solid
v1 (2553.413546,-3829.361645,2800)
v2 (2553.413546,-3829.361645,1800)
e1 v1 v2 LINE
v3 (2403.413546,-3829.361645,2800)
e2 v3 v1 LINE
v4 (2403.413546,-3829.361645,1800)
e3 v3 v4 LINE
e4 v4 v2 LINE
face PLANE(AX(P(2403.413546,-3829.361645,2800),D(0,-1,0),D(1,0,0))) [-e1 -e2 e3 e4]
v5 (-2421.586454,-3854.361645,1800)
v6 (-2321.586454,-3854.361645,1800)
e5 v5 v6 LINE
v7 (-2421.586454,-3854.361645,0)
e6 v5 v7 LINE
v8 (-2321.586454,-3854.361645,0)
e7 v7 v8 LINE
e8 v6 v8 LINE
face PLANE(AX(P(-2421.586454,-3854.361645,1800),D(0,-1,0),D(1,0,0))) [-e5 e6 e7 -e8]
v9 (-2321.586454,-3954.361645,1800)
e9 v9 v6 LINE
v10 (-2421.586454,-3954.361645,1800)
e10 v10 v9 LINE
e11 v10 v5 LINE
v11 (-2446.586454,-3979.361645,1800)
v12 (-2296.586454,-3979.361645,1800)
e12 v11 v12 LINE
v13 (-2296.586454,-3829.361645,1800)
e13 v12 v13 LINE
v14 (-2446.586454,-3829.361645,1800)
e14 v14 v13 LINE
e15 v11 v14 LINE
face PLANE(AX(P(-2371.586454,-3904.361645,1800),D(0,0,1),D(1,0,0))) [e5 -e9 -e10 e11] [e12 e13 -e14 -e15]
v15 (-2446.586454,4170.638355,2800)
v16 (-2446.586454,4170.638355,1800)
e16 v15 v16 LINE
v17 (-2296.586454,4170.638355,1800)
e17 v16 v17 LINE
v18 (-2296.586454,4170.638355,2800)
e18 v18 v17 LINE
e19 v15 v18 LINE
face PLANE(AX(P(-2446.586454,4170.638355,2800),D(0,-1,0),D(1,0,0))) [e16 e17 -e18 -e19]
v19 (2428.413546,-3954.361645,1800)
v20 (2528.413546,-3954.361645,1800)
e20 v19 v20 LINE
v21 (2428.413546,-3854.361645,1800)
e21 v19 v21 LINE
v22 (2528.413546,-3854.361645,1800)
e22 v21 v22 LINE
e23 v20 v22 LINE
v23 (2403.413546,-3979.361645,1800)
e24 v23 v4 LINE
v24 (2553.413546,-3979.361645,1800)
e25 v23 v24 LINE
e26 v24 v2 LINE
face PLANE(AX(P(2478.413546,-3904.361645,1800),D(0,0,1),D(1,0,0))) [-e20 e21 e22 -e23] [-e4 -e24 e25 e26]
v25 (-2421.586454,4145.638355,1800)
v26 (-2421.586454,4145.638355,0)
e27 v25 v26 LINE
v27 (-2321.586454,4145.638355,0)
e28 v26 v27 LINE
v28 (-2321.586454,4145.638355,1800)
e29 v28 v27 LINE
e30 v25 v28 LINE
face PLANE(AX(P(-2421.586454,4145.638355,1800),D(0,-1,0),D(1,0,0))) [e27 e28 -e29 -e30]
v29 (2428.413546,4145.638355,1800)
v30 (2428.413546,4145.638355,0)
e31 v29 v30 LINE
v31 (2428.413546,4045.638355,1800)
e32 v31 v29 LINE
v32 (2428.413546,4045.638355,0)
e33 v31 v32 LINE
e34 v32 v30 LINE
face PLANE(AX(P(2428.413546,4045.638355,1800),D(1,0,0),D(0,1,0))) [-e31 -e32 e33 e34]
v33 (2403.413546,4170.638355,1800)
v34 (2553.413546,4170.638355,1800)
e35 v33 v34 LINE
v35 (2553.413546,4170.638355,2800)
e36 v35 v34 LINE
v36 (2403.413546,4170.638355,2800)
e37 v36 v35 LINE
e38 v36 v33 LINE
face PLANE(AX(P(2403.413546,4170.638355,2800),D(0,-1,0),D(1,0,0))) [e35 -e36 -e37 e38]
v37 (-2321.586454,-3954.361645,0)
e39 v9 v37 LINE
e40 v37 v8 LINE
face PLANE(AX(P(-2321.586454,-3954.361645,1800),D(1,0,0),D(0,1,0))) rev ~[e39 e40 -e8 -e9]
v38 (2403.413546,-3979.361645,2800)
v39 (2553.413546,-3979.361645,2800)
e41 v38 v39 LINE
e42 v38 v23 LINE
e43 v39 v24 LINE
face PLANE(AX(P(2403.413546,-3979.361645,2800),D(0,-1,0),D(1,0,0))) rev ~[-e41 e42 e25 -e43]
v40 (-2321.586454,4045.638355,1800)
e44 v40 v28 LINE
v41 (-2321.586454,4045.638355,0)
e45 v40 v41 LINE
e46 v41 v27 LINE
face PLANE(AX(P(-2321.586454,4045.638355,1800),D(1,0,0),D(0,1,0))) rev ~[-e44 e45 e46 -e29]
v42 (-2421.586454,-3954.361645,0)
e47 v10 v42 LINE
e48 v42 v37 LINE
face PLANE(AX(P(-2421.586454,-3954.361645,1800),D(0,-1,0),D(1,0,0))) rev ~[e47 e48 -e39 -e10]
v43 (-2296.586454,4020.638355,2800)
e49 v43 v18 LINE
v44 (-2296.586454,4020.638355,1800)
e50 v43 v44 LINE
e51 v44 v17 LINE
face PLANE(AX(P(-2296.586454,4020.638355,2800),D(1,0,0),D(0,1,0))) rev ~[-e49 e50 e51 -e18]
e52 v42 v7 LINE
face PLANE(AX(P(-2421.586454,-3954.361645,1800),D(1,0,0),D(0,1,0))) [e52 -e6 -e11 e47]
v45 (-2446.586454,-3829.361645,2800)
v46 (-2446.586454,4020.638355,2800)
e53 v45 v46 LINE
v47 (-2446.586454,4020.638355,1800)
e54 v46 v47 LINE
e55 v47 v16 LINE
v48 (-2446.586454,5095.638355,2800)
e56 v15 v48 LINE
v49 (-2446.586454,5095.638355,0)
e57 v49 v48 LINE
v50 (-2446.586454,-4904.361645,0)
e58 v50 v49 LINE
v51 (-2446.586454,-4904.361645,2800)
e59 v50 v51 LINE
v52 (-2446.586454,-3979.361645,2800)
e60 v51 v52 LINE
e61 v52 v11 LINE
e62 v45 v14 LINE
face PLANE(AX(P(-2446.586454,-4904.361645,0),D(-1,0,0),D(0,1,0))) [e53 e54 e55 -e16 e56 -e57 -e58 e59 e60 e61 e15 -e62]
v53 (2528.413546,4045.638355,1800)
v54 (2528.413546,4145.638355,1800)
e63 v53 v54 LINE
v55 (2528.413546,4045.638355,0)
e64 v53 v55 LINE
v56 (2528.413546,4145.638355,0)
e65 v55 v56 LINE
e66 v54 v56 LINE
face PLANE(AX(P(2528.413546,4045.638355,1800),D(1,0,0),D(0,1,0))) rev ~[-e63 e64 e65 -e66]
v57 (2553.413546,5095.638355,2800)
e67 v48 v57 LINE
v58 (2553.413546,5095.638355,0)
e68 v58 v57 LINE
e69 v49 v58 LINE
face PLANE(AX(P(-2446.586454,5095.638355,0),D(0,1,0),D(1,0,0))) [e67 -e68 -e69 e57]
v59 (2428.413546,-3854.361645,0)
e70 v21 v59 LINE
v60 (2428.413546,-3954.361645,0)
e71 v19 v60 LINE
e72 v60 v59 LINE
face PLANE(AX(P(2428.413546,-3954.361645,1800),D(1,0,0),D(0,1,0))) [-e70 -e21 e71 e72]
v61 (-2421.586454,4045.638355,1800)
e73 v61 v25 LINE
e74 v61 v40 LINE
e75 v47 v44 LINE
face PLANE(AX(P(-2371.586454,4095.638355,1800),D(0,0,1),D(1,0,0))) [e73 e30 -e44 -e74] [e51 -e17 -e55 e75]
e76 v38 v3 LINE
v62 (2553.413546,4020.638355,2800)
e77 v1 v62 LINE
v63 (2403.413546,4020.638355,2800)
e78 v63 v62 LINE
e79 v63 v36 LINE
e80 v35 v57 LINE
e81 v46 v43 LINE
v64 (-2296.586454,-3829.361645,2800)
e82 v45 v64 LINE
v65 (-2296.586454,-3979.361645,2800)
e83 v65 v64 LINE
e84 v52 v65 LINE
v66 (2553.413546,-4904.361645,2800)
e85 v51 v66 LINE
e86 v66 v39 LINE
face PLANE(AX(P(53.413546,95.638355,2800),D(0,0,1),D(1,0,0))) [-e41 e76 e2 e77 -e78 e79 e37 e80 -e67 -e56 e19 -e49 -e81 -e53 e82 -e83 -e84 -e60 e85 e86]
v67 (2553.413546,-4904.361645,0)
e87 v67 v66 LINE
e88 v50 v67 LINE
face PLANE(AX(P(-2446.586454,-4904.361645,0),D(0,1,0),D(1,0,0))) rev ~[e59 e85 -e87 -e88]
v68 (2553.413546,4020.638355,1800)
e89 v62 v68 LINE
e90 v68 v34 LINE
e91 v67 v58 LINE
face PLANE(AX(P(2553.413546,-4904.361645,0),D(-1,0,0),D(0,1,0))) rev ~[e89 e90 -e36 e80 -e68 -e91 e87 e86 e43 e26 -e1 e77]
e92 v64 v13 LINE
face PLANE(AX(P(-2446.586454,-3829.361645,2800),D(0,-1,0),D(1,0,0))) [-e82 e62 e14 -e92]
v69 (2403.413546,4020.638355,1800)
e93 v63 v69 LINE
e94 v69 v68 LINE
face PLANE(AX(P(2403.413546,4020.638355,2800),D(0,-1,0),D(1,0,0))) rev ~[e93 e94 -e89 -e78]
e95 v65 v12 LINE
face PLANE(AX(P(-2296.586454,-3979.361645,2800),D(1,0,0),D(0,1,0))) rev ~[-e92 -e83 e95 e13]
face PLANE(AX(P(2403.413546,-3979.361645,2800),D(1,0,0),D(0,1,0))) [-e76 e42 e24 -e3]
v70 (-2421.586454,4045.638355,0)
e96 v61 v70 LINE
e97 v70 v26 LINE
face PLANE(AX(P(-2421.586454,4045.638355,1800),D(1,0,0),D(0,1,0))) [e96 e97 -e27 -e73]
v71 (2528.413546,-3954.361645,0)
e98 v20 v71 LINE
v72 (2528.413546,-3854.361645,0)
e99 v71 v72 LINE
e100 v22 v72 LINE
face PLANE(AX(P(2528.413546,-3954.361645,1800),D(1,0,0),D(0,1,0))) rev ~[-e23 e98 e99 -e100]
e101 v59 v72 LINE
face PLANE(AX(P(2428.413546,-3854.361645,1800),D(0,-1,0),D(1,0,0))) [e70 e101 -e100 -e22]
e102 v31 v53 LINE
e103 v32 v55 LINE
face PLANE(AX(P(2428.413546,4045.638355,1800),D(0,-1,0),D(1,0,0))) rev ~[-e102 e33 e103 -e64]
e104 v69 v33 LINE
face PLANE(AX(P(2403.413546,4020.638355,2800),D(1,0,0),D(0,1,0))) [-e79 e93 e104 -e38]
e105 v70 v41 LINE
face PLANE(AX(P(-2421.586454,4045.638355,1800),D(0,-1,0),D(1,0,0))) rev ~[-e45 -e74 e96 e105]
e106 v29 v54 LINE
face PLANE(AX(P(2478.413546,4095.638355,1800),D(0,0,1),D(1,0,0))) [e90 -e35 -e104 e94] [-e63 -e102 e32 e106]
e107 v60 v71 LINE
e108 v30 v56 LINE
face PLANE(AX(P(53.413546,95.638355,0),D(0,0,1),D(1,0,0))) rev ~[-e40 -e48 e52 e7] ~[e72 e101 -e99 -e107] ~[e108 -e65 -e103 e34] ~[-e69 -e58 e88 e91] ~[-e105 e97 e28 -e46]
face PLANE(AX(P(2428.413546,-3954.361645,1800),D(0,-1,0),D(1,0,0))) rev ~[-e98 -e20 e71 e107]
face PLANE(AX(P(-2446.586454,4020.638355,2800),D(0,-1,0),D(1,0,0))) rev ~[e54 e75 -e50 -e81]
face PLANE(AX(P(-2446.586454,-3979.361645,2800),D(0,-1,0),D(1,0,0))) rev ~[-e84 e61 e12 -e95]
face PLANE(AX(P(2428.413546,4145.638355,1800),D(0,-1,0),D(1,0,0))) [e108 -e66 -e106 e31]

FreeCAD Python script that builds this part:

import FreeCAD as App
import Part
import Sketcher
from FreeCAD import Vector

doc = App.newDocument("Part")
body = doc.addObject("PartDesign::Body", "Body")

# Sketch on XY plane
sketch1 = body.newObject("Sketcher::SketchObject", "Sketch")
sketch1.AttachmentSupport = (doc.getObject("XY_Plane"), [""])
sketch1.MapMode = "FlatFace"
sketch1.addGeometry([
    Part.LineSegment(Vector(-2447, 5096, 0), Vector(-2447, -4904, 0)),
    Part.LineSegment(Vector(-2447, -4904, 0), Vector(2553, -4904, 0)),
    Part.LineSegment(Vector(2553, -4904, 0), Vector(2553, 5096, 0)),
    Part.LineSegment(Vector(2553, 5096, 0), Vector(-2447, 5096, 0)),
], False)
sketch1.addConstraint([
    Sketcher.Constraint("Coincident", 0, 2, 1, 1),
    Sketcher.Constraint("Coincident", 1, 2, 2, 1),
    Sketcher.Constraint("Coincident", 2, 2, 3, 1),
    Sketcher.Constraint("Coincident", 3, 2, 0, 1),
    Sketcher.Constraint("Vertical", 0),
    Sketcher.Constraint("Horizontal", 1),
    Sketcher.Constraint("Vertical", 2),
    Sketcher.Constraint("Horizontal", 3),
    Sketcher.Constraint("DistanceX", 1, 1, 1, 2, 5000.0),
    Sketcher.Constraint("DistanceY", 0, 2, 0, 1, 10000.0),
    Sketcher.Constraint("DistanceX", 0, 2, -1, 1, 2446.586454),
    Sketcher.Constraint("DistanceY", 0, 2, -1, 1, 4904.361645),
])
pad1 = body.newObject("PartDesign::Pad", "Pad")
pad1.Profile = sketch1
pad1.Length = 2800

# Sketch on XY plane
sketch2 = body.newObject("Sketcher::SketchObject", "Sketch001")
sketch2.AttachmentSupport = (doc.getObject("XY_Plane"), [""])
sketch2.MapMode = "FlatFace"
sketch2.AttachmentOffset = App.Placement(Vector(0, 0, 2800), App.Rotation())
sketch2.addGeometry([
    Part.LineSegment(Vector(-2447, 4171, 0), Vector(-2447, 4021, 0)),  # 0
    Part.LineSegment(Vector(-2447, 4021, 0), Vector(-2297, 4021, 0)),  # 1
    Part.LineSegment(Vector(-2297, 4021, 0), Vector(-2297, 4171, 0)),  # 2
    Part.LineSegment(Vector(-2297, 4171, 0), Vector(-2447, 4171, 0)),  # 3
    Part.LineSegment(Vector(2403, 4171, 0), Vector(2403, 4021, 0)),  # 4
    Part.LineSegment(Vector(2403, 4021, 0), Vector(2553, 4021, 0)),  # 5
    Part.LineSegment(Vector(2553, 4021, 0), Vector(2553, 4171, 0)),  # 6
    Part.LineSegment(Vector(2553, 4171, 0), Vector(2403, 4171, 0)),  # 7
    Part.LineSegment(Vector(2403, -3829, 0), Vector(2403, -3979, 0)),  # 8
    Part.LineSegment(Vector(2403, -3979, 0), Vector(2553, -3979, 0)),  # 9
    Part.LineSegment(Vector(2553, -3979, 0), Vector(2553, -3829, 0)),  # 10
    Part.LineSegment(Vector(2553, -3829, 0), Vector(2403, -3829, 0)),  # 11
    Part.LineSegment(Vector(-2447, -3829, 0), Vector(-2447, -3979, 0)),  # 12
    Part.LineSegment(Vector(-2447, -3979, 0), Vector(-2297, -3979, 0)),  # 13
    Part.LineSegment(Vector(-2297, -3979, 0), Vector(-2297, -3829, 0)),  # 14
    Part.LineSegment(Vector(-2297, -3829, 0), Vector(-2447, -3829, 0)),  # 15
], False)
sketch2.addConstraint([
    Sketcher.Constraint("Coincident", 0, 2, 1, 1),
    Sketcher.Constraint("Coincident", 1, 2, 2, 1),
    Sketcher.Constraint("Coincident", 2, 2, 3, 1),
    Sketcher.Constraint("Coincident", 3, 2, 0, 1),
    Sketcher.Constraint("Coincident", 4, 2, 5, 1),
    Sketcher.Constraint("Coincident", 5, 2, 6, 1),
    Sketcher.Constraint("Coincident", 6, 2, 7, 1),
    Sketcher.Constraint("Coincident", 7, 2, 4, 1),
    Sketcher.Constraint("Coincident", 8, 2, 9, 1),
    Sketcher.Constraint("Coincident", 9, 2, 10, 1),
    Sketcher.Constraint("Coincident", 10, 2, 11, 1),
    Sketcher.Constraint("Coincident", 11, 2, 8, 1),
    Sketcher.Constraint("Coincident", 12, 2, 13, 1),
    Sketcher.Constraint("Coincident", 13, 2, 14, 1),
    Sketcher.Constraint("Coincident", 14, 2, 15, 1),
    Sketcher.Constraint("Coincident", 15, 2, 12, 1),
    Sketcher.Constraint("Vertical", 0),
    Sketcher.Constraint("Horizontal", 1),
    Sketcher.Constraint("Vertical", 2),
    Sketcher.Constraint("Horizontal", 3),
    Sketcher.Constraint("Vertical", 4),
    Sketcher.Constraint("Horizontal", 5),
    Sketcher.Constraint("Vertical", 6),
    Sketcher.Constraint("Horizontal", 7),
    Sketcher.Constraint("Vertical", 8),
    Sketcher.Constraint("Horizontal", 9),
    Sketcher.Constraint("Vertical", 10),
    Sketcher.Constraint("Horizontal", 11),
    Sketcher.Constraint("Vertical", 12),
    Sketcher.Constraint("Horizontal", 13),
    Sketcher.Constraint("Vertical", 14),
    Sketcher.Constraint("Horizontal", 15),
    Sketcher.Constraint("Horizontal", 1, 2, 4, 2),
    Sketcher.Constraint("Horizontal", 3, 2, 6, 2),
    Sketcher.Constraint("Horizontal", 9, 2, 12, 2),
    Sketcher.Constraint("Horizontal", 11, 2, 14, 2),
    Sketcher.Constraint("Vertical", 7, 2, 8, 2),
    Sketcher.Constraint("Vertical", 6, 2, 9, 2),
    Sketcher.Constraint("Vertical", 3, 2, 12, 2),
    Sketcher.Constraint("Vertical", 2, 2, 13, 2),
    Sketcher.Constraint("Equal", 3, 5),
    Sketcher.Constraint("Equal", 15, 0),
    Sketcher.Constraint("Equal", 6, 8),
    Sketcher.Constraint("DistanceX", 1, 1, 1, 2, 150.0),
    Sketcher.Constraint("DistanceX", 1, 2, 4, 2, 4700.0),
    Sketcher.Constraint("DistanceY", 8, 2, 4, 2, 8000.0),
    Sketcher.Constraint("DistanceX", 0, 2, -1, 1, 2446.586454),
    Sketcher.Constraint("DistanceY", -1, 1, 0, 2, 4020.638355),
])
pocket1 = body.newObject("PartDesign::Pocket", "Pocket")
pocket1.Profile = sketch2
pocket1.Length = 1000

# Sketch on XY plane
sketch3 = body.newObject("Sketcher::SketchObject", "Sketch002")
sketch3.AttachmentSupport = (doc.getObject("XY_Plane"), [""])
sketch3.MapMode = "FlatFace"
sketch3.AttachmentOffset = App.Placement(Vector(0, 0, 1800), App.Rotation())
sketch3.addGeometry([
    Part.LineSegment(Vector(2428, 4146, 0), Vector(2428, 4046, 0)),  # 0
    Part.LineSegment(Vector(2428, 4046, 0), Vector(2528, 4046, 0)),  # 1
    Part.LineSegment(Vector(2528, 4046, 0), Vector(2528, 4146, 0)),  # 2
    Part.LineSegment(Vector(2528, 4146, 0), Vector(2428, 4146, 0)),  # 3
    Part.LineSegment(Vector(-2422, 4146, 0), Vector(-2422, 4046, 0)),  # 4
    Part.LineSegment(Vector(-2422, 4046, 0), Vector(-2322, 4046, 0)),  # 5
    Part.LineSegment(Vector(-2322, 4046, 0), Vector(-2322, 4146, 0)),  # 6
    Part.LineSegment(Vector(-2322, 4146, 0), Vector(-2422, 4146, 0)),  # 7
    Part.LineSegment(Vector(-2422, -3854, 0), Vector(-2422, -3954, 0)),  # 8
    Part.LineSegment(Vector(-2422, -3954, 0), Vector(-2322, -3954, 0)),  # 9
    Part.LineSegment(Vector(-2322, -3954, 0), Vector(-2322, -3854, 0)),  # 10
    Part.LineSegment(Vector(-2322, -3854, 0), Vector(-2422, -3854, 0)),  # 11
    Part.LineSegment(Vector(2428, -3854, 0), Vector(2428, -3954, 0)),  # 12
    Part.LineSegment(Vector(2428, -3954, 0), Vector(2528, -3954, 0)),  # 13
    Part.LineSegment(Vector(2528, -3954, 0), Vector(2528, -3854, 0)),  # 14
    Part.LineSegment(Vector(2528, -3854, 0), Vector(2428, -3854, 0)),  # 15
], False)
sketch3.addConstraint([
    Sketcher.Constraint("Coincident", 0, 2, 1, 1),
    Sketcher.Constraint("Coincident", 1, 2, 2, 1),
    Sketcher.Constraint("Coincident", 2, 2, 3, 1),
    Sketcher.Constraint("Coincident", 3, 2, 0, 1),
    Sketcher.Constraint("Coincident", 4, 2, 5, 1),
    Sketcher.Constraint("Coincident", 5, 2, 6, 1),
    Sketcher.Constraint("Coincident", 6, 2, 7, 1),
    Sketcher.Constraint("Coincident", 7, 2, 4, 1),
    Sketcher.Constraint("Coincident", 8, 2, 9, 1),
    Sketcher.Constraint("Coincident", 9, 2, 10, 1),
    Sketcher.Constraint("Coincident", 10, 2, 11, 1),
    Sketcher.Constraint("Coincident", 11, 2, 8, 1),
    Sketcher.Constraint("Coincident", 12, 2, 13, 1),
    Sketcher.Constraint("Coincident", 13, 2, 14, 1),
    Sketcher.Constraint("Coincident", 14, 2, 15, 1),
    Sketcher.Constraint("Coincident", 15, 2, 12, 1),
    Sketcher.Constraint("Vertical", 0),
    Sketcher.Constraint("Horizontal", 1),
    Sketcher.Constraint("Vertical", 2),
    Sketcher.Constraint("Horizontal", 3),
    Sketcher.Constraint("Vertical", 4),
    Sketcher.Constraint("Horizontal", 5),
    Sketcher.Constraint("Vertical", 6),
    Sketcher.Constraint("Horizontal", 7),
    Sketcher.Constraint("Vertical", 8),
    Sketcher.Constraint("Horizontal", 9),
    Sketcher.Constraint("Vertical", 10),
    Sketcher.Constraint("Horizontal", 11),
    Sketcher.Constraint("Vertical", 12),
    Sketcher.Constraint("Horizontal", 13),
    Sketcher.Constraint("Vertical", 14),
    Sketcher.Constraint("Horizontal", 15),
    Sketcher.Constraint("Horizontal", 1, 2, 4, 2),
    Sketcher.Constraint("Horizontal", 3, 2, 6, 2),
    Sketcher.Constraint("Horizontal", 9, 2, 12, 2),
    Sketcher.Constraint("Horizontal", 11, 2, 14, 2),
    Sketcher.Constraint("Vertical", 7, 2, 8, 2),
    Sketcher.Constraint("Vertical", 6, 2, 9, 2),
    Sketcher.Constraint("Vertical", 3, 2, 12, 2),
    Sketcher.Constraint("Vertical", 2, 2, 13, 2),
    Sketcher.Constraint("Equal", 3, 5),
    Sketcher.Constraint("Equal", 15, 0),
    Sketcher.Constraint("Equal", 6, 8),
    Sketcher.Constraint("DistanceX", 1, 1, 1, 2, 100.0),
    Sketcher.Constraint("DistanceX", 4, 2, 0, 2, 4850.0),
    Sketcher.Constraint("DistanceY", 8, 2, 4, 2, 8000.0),
    Sketcher.Constraint("DistanceX", -1, 1, 0, 2, 2428.413546),
    Sketcher.Constraint("DistanceY", -1, 1, 0, 2, 4045.638355),
])
pocket2 = body.newObject("PartDesign::Pocket", "Pocket001")
pocket2.Profile = sketch3
pocket2.Length = 1800

doc.recompute()
